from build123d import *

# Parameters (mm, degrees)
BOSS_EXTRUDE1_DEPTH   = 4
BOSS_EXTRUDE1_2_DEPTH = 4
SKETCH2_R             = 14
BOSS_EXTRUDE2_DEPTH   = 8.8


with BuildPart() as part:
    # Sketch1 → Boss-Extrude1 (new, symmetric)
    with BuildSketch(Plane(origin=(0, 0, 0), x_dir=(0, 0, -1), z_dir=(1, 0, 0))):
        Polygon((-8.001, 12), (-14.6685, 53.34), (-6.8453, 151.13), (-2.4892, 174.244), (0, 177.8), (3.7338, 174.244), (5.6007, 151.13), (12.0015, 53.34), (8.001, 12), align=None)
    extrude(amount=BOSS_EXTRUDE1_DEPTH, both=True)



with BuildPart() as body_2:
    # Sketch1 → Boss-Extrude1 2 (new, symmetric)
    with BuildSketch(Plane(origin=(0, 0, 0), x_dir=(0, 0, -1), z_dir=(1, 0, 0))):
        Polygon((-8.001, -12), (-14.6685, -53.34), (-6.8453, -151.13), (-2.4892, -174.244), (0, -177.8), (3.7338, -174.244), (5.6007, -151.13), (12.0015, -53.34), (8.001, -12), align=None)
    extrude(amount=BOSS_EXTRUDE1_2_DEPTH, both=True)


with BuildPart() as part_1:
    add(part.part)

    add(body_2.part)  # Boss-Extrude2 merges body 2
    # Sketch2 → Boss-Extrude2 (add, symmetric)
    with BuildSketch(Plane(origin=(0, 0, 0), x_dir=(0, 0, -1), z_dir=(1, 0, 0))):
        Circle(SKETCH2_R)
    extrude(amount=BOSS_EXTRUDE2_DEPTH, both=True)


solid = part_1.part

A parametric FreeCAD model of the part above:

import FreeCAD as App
import Part
import Sketcher
Q = App.Units.Quantity


def add_polygon(sketch, points):
    """Adds a closed chain of lines whose ends are joined by coincident constraints."""
    first, n = sketch.GeometryCount, len(points)
    for a, b in zip(points, points[1:] + points[:1]):
        sketch.addGeometry(Part.LineSegment(App.Vector(*a, 0), App.Vector(*b, 0)), False)
    for i in range(n):
        sketch.addConstraint(Sketcher.Constraint("Coincident", first + i, 2, first + (i + 1) % n, 1))

doc = App.newDocument("Part")
body = doc.addObject("PartDesign::Body", "Body")

# Sketch on YZ plane
sketch1 = body.newObject("Sketcher::SketchObject", "Sketch")
sketch1.AttachmentSupport = (doc.getObject("YZ_Plane"), [""])
sketch1.MapMode = "FlatFace"
add_polygon(sketch1, [(53.3, 14.7), (12, 8), (12, -8), (53.3, -12), (151.1, -5.6), (174.2, -3.7), (177.8, 0), (174.2, 2.5), (151.1, 6.8)])  # lines 0-8
sketch1.addConstraint([
    Sketcher.Constraint("Vertical", 1),
    Sketcher.Constraint("PointOnObject", 5, 2, -1),
    Sketcher.Constraint("Vertical", 4, 2, 6, 2),
    Sketcher.Constraint("Vertical", 3, 2, 7, 2),
    Sketcher.Constraint("Vertical", 2, 2, 8, 2),
    Sketcher.Constraint("DistanceX", -1, 1, 0, 2, Q("12 mm")),
    Sketcher.Constraint("DistanceX", -1, 1, 5, 2, Q("177.8 mm")),
    Sketcher.Constraint("DistanceY", 1, 2, 1, 1, Q("16.002 mm")),
    Sketcher.Constraint("DistanceX", -1, 1, 2, 2, Q("53.34 mm")),
    Sketcher.Constraint("DistanceX", -1, 1, 3, 2, Q("151.13 mm")),
    Sketcher.Constraint("DistanceY", 2, 2, 8, 2, Q("26.67 mm")),
    Sketcher.Constraint("DistanceY", -1, 1, 0, 2, Q("8.001 mm")),
    Sketcher.Constraint("DistanceX", -1, 1, 4, 2, Q("174.244 mm")),
    Sketcher.Constraint("DistanceY", 4, 2, 6, 2, Q("6.223 mm")),
    Sketcher.Constraint("DistanceY", 3, 2, 7, 2, Q("12.446 mm")),
    Sketcher.Constraint("Distance", 5, Q("5.1562 mm")),
    Sketcher.Constraint("DistanceY", 2, 2, -1, 1, Q("12.0015 mm")),
    Sketcher.Constraint("DistanceY", 3, 2, -1, 1, Q("5.6007 mm")),
])
pad1 = body.newObject("PartDesign::Pad", "Pad")
pad1.Profile = sketch1
pad1.Length = 8
pad1.Midplane = True
body2 = doc.addObject("PartDesign::Body", "Body001")

# Sketch on YZ plane
sketch2 = body2.newObject("Sketcher::SketchObject", "Sketch001")
sketch2.AttachmentSupport = (doc.getObject("YZ_Plane001"), [""])
sketch2.MapMode = "FlatFace"
add_polygon(sketch2, [(-12, 8), (-53.3, 14.7), (-151.1, 6.8), (-174.2, 2.5), (-177.8, 0), (-174.2, -3.7), (-151.1, -5.6), (-53.3, -12), (-12, -8)])  # lines 0-8
sketch2.addConstraint([
    Sketcher.Constraint("Vertical", 8),
    Sketcher.Constraint("PointOnObject", 3, 2, -1),
    Sketcher.Constraint("Vertical", 2, 2, 4, 2),
    Sketcher.Constraint("Vertical", 1, 2, 5, 2),
    Sketcher.Constraint("Vertical", 0, 2, 6, 2),
    Sketcher.Constraint("DistanceX", 7, 2, -1, 1, Q("12 mm")),
    Sketcher.Constraint("DistanceX", 3, 2, -1, 1, Q("177.8 mm")),
    Sketcher.Constraint("DistanceY", 8, 1, 8, 2, Q("16.002 mm")),
    Sketcher.Constraint("DistanceX", 0, 2, -1, 1, Q("53.34 mm")),
    Sketcher.Constraint("DistanceX", 1, 2, -1, 1, Q("151.13 mm")),
    Sketcher.Constraint("DistanceY", 6, 2, 0, 2, Q("26.67 mm")),
    Sketcher.Constraint("DistanceX", 2, 2, -1, 1, Q("174.244 mm")),
    Sketcher.Constraint("DistanceY", 7, 2, -1, 1, Q("8.001 mm")),
    Sketcher.Constraint("DistanceY", 4, 2, 2, 2, Q("6.223 mm")),
    Sketcher.Constraint("DistanceY", 5, 2, 1, 2, Q("12.446 mm")),
    Sketcher.Constraint("Distance", 4, Q("5.1562 mm")),
    Sketcher.Constraint("DistanceY", -1, 1, 0, 2, Q("14.6685 mm")),
    Sketcher.Constraint("DistanceY", -1, 1, 1, 2, Q("6.8453 mm")),
])
pad2 = body2.newObject("PartDesign::Pad", "Pad001")
pad2.Profile = sketch2
pad2.Length = 8
pad2.Midplane = True
body.AllowCompound = True
doc.recompute()

boolean = body.newObject("PartDesign::Boolean", "Boolean")
boolean.Type = "Fuse"
boolean.addObjects([body2])

# Sketch on YZ plane
sketch3 = body.newObject("Sketcher::SketchObject", "Sketch002")
sketch3.AttachmentSupport = (doc.getObject("YZ_Plane"), [""])
sketch3.MapMode = "FlatFace"
sketch3.addGeometry(Part.Circle(App.Vector(0, 0, 0), App.Vector(0, 0, 1), 14), False)
sketch3.addConstraint([
    Sketcher.Constraint("Coincident", 0, 3, -1, 1),
    Sketcher.Constraint("Diameter", 0, Q("28 mm")),
])
pad3 = body.newObject("PartDesign::Pad", "Pad002")
pad3.Profile = sketch3
pad3.Length = 17.6
pad3.Midplane = True

doc.recompute()
